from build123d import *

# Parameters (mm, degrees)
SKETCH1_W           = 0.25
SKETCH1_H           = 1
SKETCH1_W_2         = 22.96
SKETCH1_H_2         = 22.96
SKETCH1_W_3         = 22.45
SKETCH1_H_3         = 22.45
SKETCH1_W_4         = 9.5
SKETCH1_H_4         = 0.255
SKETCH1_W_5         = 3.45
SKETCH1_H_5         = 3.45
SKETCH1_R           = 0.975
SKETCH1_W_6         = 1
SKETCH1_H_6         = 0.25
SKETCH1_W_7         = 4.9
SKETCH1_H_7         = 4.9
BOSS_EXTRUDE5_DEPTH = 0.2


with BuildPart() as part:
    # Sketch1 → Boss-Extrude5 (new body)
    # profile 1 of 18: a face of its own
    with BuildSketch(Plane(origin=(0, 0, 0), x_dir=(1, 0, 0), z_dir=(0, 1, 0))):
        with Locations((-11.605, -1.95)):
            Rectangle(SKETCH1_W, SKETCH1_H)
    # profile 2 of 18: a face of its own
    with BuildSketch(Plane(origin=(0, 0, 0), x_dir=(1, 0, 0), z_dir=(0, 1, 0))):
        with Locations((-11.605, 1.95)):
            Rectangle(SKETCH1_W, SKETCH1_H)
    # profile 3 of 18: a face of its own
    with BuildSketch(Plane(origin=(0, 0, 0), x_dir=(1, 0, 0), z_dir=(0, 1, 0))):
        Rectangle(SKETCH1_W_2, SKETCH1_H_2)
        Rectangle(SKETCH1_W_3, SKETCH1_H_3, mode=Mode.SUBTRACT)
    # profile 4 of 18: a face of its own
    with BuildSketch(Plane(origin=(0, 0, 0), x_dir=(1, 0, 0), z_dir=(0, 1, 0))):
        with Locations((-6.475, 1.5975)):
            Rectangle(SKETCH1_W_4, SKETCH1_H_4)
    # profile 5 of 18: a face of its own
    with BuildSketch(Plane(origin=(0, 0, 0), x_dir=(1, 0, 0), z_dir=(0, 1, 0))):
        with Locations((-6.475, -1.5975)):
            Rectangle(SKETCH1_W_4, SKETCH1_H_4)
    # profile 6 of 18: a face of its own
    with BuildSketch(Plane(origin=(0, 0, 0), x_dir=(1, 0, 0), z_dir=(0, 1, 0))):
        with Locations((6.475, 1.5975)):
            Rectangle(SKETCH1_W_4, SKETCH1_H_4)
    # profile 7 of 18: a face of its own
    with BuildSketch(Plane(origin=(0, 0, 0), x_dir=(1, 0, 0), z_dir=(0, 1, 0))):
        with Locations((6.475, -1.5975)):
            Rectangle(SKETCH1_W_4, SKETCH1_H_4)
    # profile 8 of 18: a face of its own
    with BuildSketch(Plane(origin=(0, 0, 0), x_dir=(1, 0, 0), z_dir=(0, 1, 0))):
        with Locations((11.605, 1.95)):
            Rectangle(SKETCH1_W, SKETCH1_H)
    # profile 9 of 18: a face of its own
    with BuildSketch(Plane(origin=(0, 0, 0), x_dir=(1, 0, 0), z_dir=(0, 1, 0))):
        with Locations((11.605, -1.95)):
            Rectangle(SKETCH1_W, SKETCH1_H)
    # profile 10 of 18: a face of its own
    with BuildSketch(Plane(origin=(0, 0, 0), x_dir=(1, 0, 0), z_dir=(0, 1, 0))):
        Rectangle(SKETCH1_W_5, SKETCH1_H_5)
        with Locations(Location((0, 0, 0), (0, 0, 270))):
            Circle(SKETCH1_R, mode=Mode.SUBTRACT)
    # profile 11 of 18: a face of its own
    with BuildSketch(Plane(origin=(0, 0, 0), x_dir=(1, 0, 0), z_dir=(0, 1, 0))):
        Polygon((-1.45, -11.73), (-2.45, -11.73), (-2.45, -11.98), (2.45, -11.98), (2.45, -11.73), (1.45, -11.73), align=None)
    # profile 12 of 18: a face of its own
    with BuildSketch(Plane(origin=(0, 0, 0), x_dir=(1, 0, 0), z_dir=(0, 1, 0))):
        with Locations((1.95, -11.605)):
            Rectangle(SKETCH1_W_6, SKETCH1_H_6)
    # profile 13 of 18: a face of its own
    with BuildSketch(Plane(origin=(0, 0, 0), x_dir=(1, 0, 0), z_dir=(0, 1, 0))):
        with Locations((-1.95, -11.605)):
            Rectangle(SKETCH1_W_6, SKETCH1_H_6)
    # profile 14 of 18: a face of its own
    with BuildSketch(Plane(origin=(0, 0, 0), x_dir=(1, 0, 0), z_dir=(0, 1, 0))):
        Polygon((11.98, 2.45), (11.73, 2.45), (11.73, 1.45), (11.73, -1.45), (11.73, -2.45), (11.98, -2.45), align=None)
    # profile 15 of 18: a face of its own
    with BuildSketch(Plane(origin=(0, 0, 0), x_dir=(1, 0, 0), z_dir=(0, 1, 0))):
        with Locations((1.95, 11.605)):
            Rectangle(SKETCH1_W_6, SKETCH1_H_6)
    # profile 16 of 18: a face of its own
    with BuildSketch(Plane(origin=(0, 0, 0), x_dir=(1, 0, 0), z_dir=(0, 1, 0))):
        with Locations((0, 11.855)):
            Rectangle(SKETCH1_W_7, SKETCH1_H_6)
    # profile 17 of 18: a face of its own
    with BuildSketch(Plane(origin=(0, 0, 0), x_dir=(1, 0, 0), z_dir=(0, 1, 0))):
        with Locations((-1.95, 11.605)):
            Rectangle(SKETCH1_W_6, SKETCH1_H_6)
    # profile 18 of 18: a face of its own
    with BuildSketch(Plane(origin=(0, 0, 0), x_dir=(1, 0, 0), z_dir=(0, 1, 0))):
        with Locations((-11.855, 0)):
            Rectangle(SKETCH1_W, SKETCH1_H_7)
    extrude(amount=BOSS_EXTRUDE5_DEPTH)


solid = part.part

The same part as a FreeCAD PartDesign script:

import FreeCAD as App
import Part
import Sketcher

V = App.Vector

doc = App.newDocument("Part")
body = doc.addObject("PartDesign::Body", "Body")

# Sketch on XZ plane
sketch1 = body.newObject("Sketcher::SketchObject", "Sketch")
sketch1.AttachmentSupport = (doc.getObject("XZ_Plane"), [""])
sketch1.MapMode = "FlatFace"
sketch1.addGeometry(Part.LineSegment(V(-11.48, 2.45, 0), V(-11.48, 11.48, 0)), False)
sketch1.addGeometry(Part.LineSegment(V(-11.48, 11.48, 0), V(-2.45, 11.48, 0)), False)
sketch1.addGeometry(Part.LineSegment(V(-2.45, 11.48, 0), V(-2.45, 11.98, 0)), False)
sketch1.addGeometry(Part.LineSegment(V(-2.45, 11.98, 0), V(2.45, 11.98, 0)), False)
sketch1.addGeometry(Part.LineSegment(V(2.45, 11.98, 0), V(2.45, 11.48, 0)), False)
sketch1.addGeometry(Part.LineSegment(V(2.45, 11.48, 0), V(11.48, 11.48, 0)), False)
sketch1.addGeometry(Part.LineSegment(V(11.48, 11.48, 0), V(11.48, 2.45, 0)), False)
sketch1.addGeometry(Part.LineSegment(V(11.48, 2.45, 0), V(11.98, 2.45, 0)), False)
sketch1.addGeometry(Part.LineSegment(V(11.98, 2.45, 0), V(11.98, -2.45, 0)), False)
sketch1.addGeometry(Part.LineSegment(V(11.98, -2.45, 0), V(11.48, -2.45, 0)), False)
sketch1.addGeometry(Part.LineSegment(V(11.48, -2.45, 0), V(11.48, -11.48, 0)), False)
sketch1.addGeometry(Part.LineSegment(V(11.48, -11.48, 0), V(2.45, -11.48, 0)), False)
sketch1.addGeometry(Part.LineSegment(V(2.45, -11.48, 0), V(2.45, -11.98, 0)), False)
sketch1.addGeometry(Part.LineSegment(V(2.45, -11.98, 0), V(-2.45, -11.98, 0)), False)
sketch1.addGeometry(Part.LineSegment(V(-2.45, -11.98, 0), V(-2.45, -11.48, 0)), False)
sketch1.addGeometry(Part.LineSegment(V(-2.45, -11.48, 0), V(-11.48, -11.48, 0)), False)
sketch1.addGeometry(Part.LineSegment(V(-11.48, -11.48, 0), V(-11.48, -2.45, 0)), False)
sketch1.addGeometry(Part.LineSegment(V(-11.48, -2.45, 0), V(-11.98, -2.45, 0)), False)
sketch1.addGeometry(Part.LineSegment(V(-11.98, -2.45, 0), V(-11.98, 2.45, 0)), False)
sketch1.addGeometry(Part.LineSegment(V(-11.98, 2.45, 0), V(-11.48, 2.45, 0)), False)
sketch1.addGeometry(Part.LineSegment(V(-11.48, 1.45, 0), V(-11.73, 1.45, 0)), False)
sketch1.addGeometry(Part.LineSegment(V(-11.73, 1.45, 0), V(-11.73, -1.45, 0)), False)
sketch1.addGeometry(Part.LineSegment(V(-11.73, -1.45, 0), V(-11.48, -1.45, 0)), False)
sketch1.addGeometry(Part.LineSegment(V(-11.48, -1.45, 0), V(-11.48, 1.45, 0)), False)
sketch1.addGeometry(Part.LineSegment(V(-11.22, -1.73, 0), V(-11.22, -11.22, 0)), False)
sketch1.addGeometry(Part.LineSegment(V(-11.22, -11.22, 0), V(11.22, -11.22, 0)), False)
sketch1.addGeometry(Part.LineSegment(V(11.22, -11.22, 0), V(11.22, -1.73, 0)), False)
sketch1.addGeometry(Part.LineSegment(V(11.22, -1.73, 0), V(-11.22, -1.73, 0)), False)
sketch1.addGeometry(Part.LineSegment(V(-1.45, 11.48, 0), V(1.45, 11.48, 0)), False)
sketch1.addGeometry(Part.LineSegment(V(1.45, 11.48, 0), V(1.45, 11.73, 0)), False)
sketch1.addGeometry(Part.LineSegment(V(1.45, 11.73, 0), V(-1.45, 11.73, 0)), False)
sketch1.addGeometry(Part.LineSegment(V(-1.45, 11.73, 0), V(-1.45, 11.48, 0)), False)
sketch1.addGeometry(Part.LineSegment(V(1.45, -11.48, 0), V(-1.45, -11.48, 0)), False)
sketch1.addGeometry(Part.LineSegment(V(-1.45, -11.48, 0), V(-1.45, -11.73, 0)), False)
sketch1.addGeometry(Part.LineSegment(V(-1.45, -11.73, 0), V(1.45, -11.73, 0)), False)
sketch1.addGeometry(Part.LineSegment(V(1.45, -11.73, 0), V(1.45, -11.48, 0)), False)
sketch1.addGeometry(Part.LineSegment(V(11.48, 1.45, 0), V(11.48, -1.45, 0)), False)
sketch1.addGeometry(Part.LineSegment(V(11.48, -1.45, 0), V(11.73, -1.45, 0)), False)
sketch1.addGeometry(Part.LineSegment(V(11.73, -1.45, 0), V(11.73, 1.45, 0)), False)
sketch1.addGeometry(Part.LineSegment(V(11.73, 1.45, 0), V(11.48, 1.45, 0)), False)
sketch1.addGeometry(Part.LineSegment(V(11.22, 11.22, 0), V(-11.22, 11.22, 0)), False)
sketch1.addGeometry(Part.LineSegment(V(-11.22, 11.22, 0), V(-11.22, 1.73, 0)), False)
sketch1.addGeometry(Part.LineSegment(V(-11.22, 1.73, 0), V(11.22, 1.73, 0)), False)
sketch1.addGeometry(Part.LineSegment(V(11.22, 1.73, 0), V(11.22, 11.22, 0)), False)
sketch1.addGeometry(Part.LineSegment(V(11.22, -1.47, 0), V(11.22, 1.47, 0)), False)
sketch1.addGeometry(Part.LineSegment(V(11.22, 1.47, 0), V(1.73, 1.47, 0)), False)
sketch1.addGeometry(Part.LineSegment(V(1.73, 1.47, 0), V(1.73, -1.47, 0)), False)
sketch1.addGeometry(Part.LineSegment(V(1.73, -1.47, 0), V(11.22, -1.47, 0)), False)
sketch1.addGeometry(Part.LineSegment(V(-11.22, 1.47, 0), V(-11.22, -1.47, 0)), False)
sketch1.addGeometry(Part.LineSegment(V(-11.22, -1.47, 0), V(-1.73, -1.47, 0)), False)
sketch1.addGeometry(Part.LineSegment(V(-1.73, -1.47, 0), V(-1.73, 1.47, 0)), False)
sketch1.addGeometry(Part.LineSegment(V(-1.73, 1.47, 0), V(-11.22, 1.47, 0)), False)
sketch1.addGeometry(Part.Circle(V(0, 0, 0), V(0, 0, 1), 0.97), False)
sketch1.addConstraint(Sketcher.Constraint("Coincident", 0, 2, 1, 1))
sketch1.addConstraint(Sketcher.Constraint("Coincident", 1, 2, 2, 1))
sketch1.addConstraint(Sketcher.Constraint("Coincident", 2, 2, 3, 1))
sketch1.addConstraint(Sketcher.Constraint("Coincident", 3, 2, 4, 1))
sketch1.addConstraint(Sketcher.Constraint("Coincident", 4, 2, 5, 1))
sketch1.addConstraint(Sketcher.Constraint("Coincident", 5, 2, 6, 1))
sketch1.addConstraint(Sketcher.Constraint("Coincident", 6, 2, 7, 1))
sketch1.addConstraint(Sketcher.Constraint("Coincident", 7, 2, 8, 1))
sketch1.addConstraint(Sketcher.Constraint("Coincident", 8, 2, 9, 1))
sketch1.addConstraint(Sketcher.Constraint("Coincident", 9, 2, 10, 1))
sketch1.addConstraint(Sketcher.Constraint("Coincident", 10, 2, 11, 1))
sketch1.addConstraint(Sketcher.Constraint("Coincident", 11, 2, 12, 1))
sketch1.addConstraint(Sketcher.Constraint("Coincident", 12, 2, 13, 1))
sketch1.addConstraint(Sketcher.Constraint("Coincident", 13, 2, 14, 1))
sketch1.addConstraint(Sketcher.Constraint("Coincident", 14, 2, 15, 1))
sketch1.addConstraint(Sketcher.Constraint("Coincident", 15, 2, 16, 1))
sketch1.addConstraint(Sketcher.Constraint("Coincident", 16, 2, 17, 1))
sketch1.addConstraint(Sketcher.Constraint("Coincident", 17, 2, 18, 1))
sketch1.addConstraint(Sketcher.Constraint("Coincident", 18, 2, 19, 1))
sketch1.addConstraint(Sketcher.Constraint("Coincident", 19, 2, 0, 1))
sketch1.addConstraint(Sketcher.Constraint("Coincident", 20, 2, 21, 1))
sketch1.addConstraint(Sketcher.Constraint("Coincident", 21, 2, 22, 1))
sketch1.addConstraint(Sketcher.Constraint("Coincident", 22, 2, 23, 1))
sketch1.addConstraint(Sketcher.Constraint("Coincident", 23, 2, 20, 1))
sketch1.addConstraint(Sketcher.Constraint("Coincident", 24, 2, 25, 1))
sketch1.addConstraint(Sketcher.Constraint("Coincident", 25, 2, 26, 1))
sketch1.addConstraint(Sketcher.Constraint("Coincident", 26, 2, 27, 1))
sketch1.addConstraint(Sketcher.Constraint("Coincident", 27, 2, 24, 1))
sketch1.addConstraint(Sketcher.Constraint("Coincident", 28, 2, 29, 1))
sketch1.addConstraint(Sketcher.Constraint("Coincident", 29, 2, 30, 1))
sketch1.addConstraint(Sketcher.Constraint("Coincident", 30, 2, 31, 1))
sketch1.addConstraint(Sketcher.Constraint("Coincident", 31, 2, 28, 1))
sketch1.addConstraint(Sketcher.Constraint("Coincident", 32, 2, 33, 1))
sketch1.addConstraint(Sketcher.Constraint("Coincident", 33, 2, 34, 1))
sketch1.addConstraint(Sketcher.Constraint("Coincident", 34, 2, 35, 1))
sketch1.addConstraint(Sketcher.Constraint("Coincident", 35, 2, 32, 1))
sketch1.addConstraint(Sketcher.Constraint("Coincident", 36, 2, 37, 1))
sketch1.addConstraint(Sketcher.Constraint("Coincident", 37, 2, 38, 1))
sketch1.addConstraint(Sketcher.Constraint("Coincident", 38, 2, 39, 1))
sketch1.addConstraint(Sketcher.Constraint("Coincident", 39, 2, 36, 1))
sketch1.addConstraint(Sketcher.Constraint("Coincident", 40, 2, 41, 1))
sketch1.addConstraint(Sketcher.Constraint("Coincident", 41, 2, 42, 1))
sketch1.addConstraint(Sketcher.Constraint("Coincident", 42, 2, 43, 1))
sketch1.addConstraint(Sketcher.Constraint("Coincident", 43, 2, 40, 1))
sketch1.addConstraint(Sketcher.Constraint("Coincident", 44, 2, 45, 1))
sketch1.addConstraint(Sketcher.Constraint("Coincident", 45, 2, 46, 1))
sketch1.addConstraint(Sketcher.Constraint("Coincident", 46, 2, 47, 1))
sketch1.addConstraint(Sketcher.Constraint("Coincident", 47, 2, 44, 1))
sketch1.addConstraint(Sketcher.Constraint("Coincident", 48, 2, 49, 1))
sketch1.addConstraint(Sketcher.Constraint("Coincident", 49, 2, 50, 1))
sketch1.addConstraint(Sketcher.Constraint("Coincident", 50, 2, 51, 1))
sketch1.addConstraint(Sketcher.Constraint("Coincident", 51, 2, 48, 1))
sketch1.addConstraint(Sketcher.Constraint("Vertical", 0))
sketch1.addConstraint(Sketcher.Constraint("Horizontal", 1))
sketch1.addConstraint(Sketcher.Constraint("Vertical", 2))
sketch1.addConstraint(Sketcher.Constraint("Horizontal", 3))
sketch1.addConstraint(Sketcher.Constraint("Vertical", 4))
sketch1.addConstraint(Sketcher.Constraint("Horizontal", 5))
sketch1.addConstraint(Sketcher.Constraint("Vertical", 6))
sketch1.addConstraint(Sketcher.Constraint("Horizontal", 7))
sketch1.addConstraint(Sketcher.Constraint("Vertical", 8))
sketch1.addConstraint(Sketcher.Constraint("Horizontal", 9))
sketch1.addConstraint(Sketcher.Constraint("Vertical", 10))
sketch1.addConstraint(Sketcher.Constraint("Horizontal", 11))
sketch1.addConstraint(Sketcher.Constraint("Vertical", 12))
sketch1.addConstraint(Sketcher.Constraint("Horizontal", 13))
sketch1.addConstraint(Sketcher.Constraint("Vertical", 14))
sketch1.addConstraint(Sketcher.Constraint("Horizontal", 15))
sketch1.addConstraint(Sketcher.Constraint("Vertical", 16))
sketch1.addConstraint(Sketcher.Constraint("Horizontal", 17))
sketch1.addConstraint(Sketcher.Constraint("Vertical", 18))
sketch1.addConstraint(Sketcher.Constraint("Horizontal", 19))
sketch1.addConstraint(Sketcher.Constraint("Horizontal", 20))
sketch1.addConstraint(Sketcher.Constraint("Vertical", 21))
sketch1.addConstraint(Sketcher.Constraint("Horizontal", 22))
sketch1.addConstraint(Sketcher.Constraint("Vertical", 23))
sketch1.addConstraint(Sketcher.Constraint("Vertical", 24))
sketch1.addConstraint(Sketcher.Constraint("Horizontal", 25))
sketch1.addConstraint(Sketcher.Constraint("Vertical", 26))
sketch1.addConstraint(Sketcher.Constraint("Horizontal", 27))
sketch1.addConstraint(Sketcher.Constraint("Horizontal", 28))
sketch1.addConstraint(Sketcher.Constraint("Vertical", 29))
sketch1.addConstraint(Sketcher.Constraint("Horizontal", 30))
sketch1.addConstraint(Sketcher.Constraint("Vertical", 31))
sketch1.addConstraint(Sketcher.Constraint("Horizontal", 32))
sketch1.addConstraint(Sketcher.Constraint("Vertical", 33))
sketch1.addConstraint(Sketcher.Constraint("Horizontal", 34))
sketch1.addConstraint(Sketcher.Constraint("Vertical", 35))
sketch1.addConstraint(Sketcher.Constraint("Vertical", 36))
sketch1.addConstraint(Sketcher.Constraint("Horizontal", 37))
sketch1.addConstraint(Sketcher.Constraint("Vertical", 38))
sketch1.addConstraint(Sketcher.Constraint("Horizontal", 39))
sketch1.addConstraint(Sketcher.Constraint("Horizontal", 40))
sketch1.addConstraint(Sketcher.Constraint("Vertical", 41))
sketch1.addConstraint(Sketcher.Constraint("Horizontal", 42))
sketch1.addConstraint(Sketcher.Constraint("Vertical", 43))
sketch1.addConstraint(Sketcher.Constraint("Vertical", 44))
sketch1.addConstraint(Sketcher.Constraint("Horizontal", 45))
sketch1.addConstraint(Sketcher.Constraint("Vertical", 46))
sketch1.addConstraint(Sketcher.Constraint("Horizontal", 47))
sketch1.addConstraint(Sketcher.Constraint("Vertical", 48))
sketch1.addConstraint(Sketcher.Constraint("Horizontal", 49))
sketch1.addConstraint(Sketcher.Constraint("Vertical", 50))
sketch1.addConstraint(Sketcher.Constraint("Horizontal", 51))
sketch1.addConstraint(Sketcher.Constraint("Coincident", 52, 3, -1, 1))
sketch1.addConstraint(Sketcher.Constraint("Symmetric", 0, 2, 10, 2, -1, 1))
sketch1.addConstraint(Sketcher.Constraint("Symmetric", 2, 2, 12, 2, -1, 1))
sketch1.addConstraint(Sketcher.Constraint("Symmetric", 4, 2, 14, 2, -1, 1))
sketch1.addConstraint(Sketcher.Constraint("Symmetric", 6, 2, 16, 2, -1, 1))
sketch1.addConstraint(Sketcher.Constraint("Symmetric", 8, 2, 18, 2, -1, 1))
sketch1.addConstraint(Sketcher.Constraint("Symmetric", 28, 2, 32, 2, -1, 1))
sketch1.addConstraint(Sketcher.Constraint("Symmetric", 30, 2, 34, 2, -1, 1))
sketch1.addConstraint(Sketcher.Constraint("Symmetric", 23, 2, 36, 2, -1, 1))
sketch1.addConstraint(Sketcher.Constraint("Symmetric", 21, 2, 38, 2, -1, 1))
sketch1.addConstraint(Sketcher.Constraint("Symmetric", 25, 2, 40, 2, -1, 1))
sketch1.addConstraint(Sketcher.Constraint("Symmetric", 27, 2, 42, 2, -1, 1))
sketch1.addConstraint(Sketcher.Constraint("Symmetric", 44, 2, 48, 2, -1, 1))
sketch1.addConstraint(Sketcher.Constraint("Symmetric", 46, 2, 50, 2, -1, 1))
sketch1.addConstraint(Sketcher.Constraint("Symmetric", 1, 2, 4, 2, -2))
sketch1.addConstraint(Sketcher.Constraint("Symmetric", 9, 2, 16, 2, -2))
sketch1.addConstraint(Sketcher.Constraint("Horizontal", 5, 2, 28, 2))
sketch1.addConstraint(Sketcher.Constraint("Horizontal", 22, 2, 36, 2))
sketch1.addConstraint(Sketcher.Constraint("Horizontal", 47, 2, 48, 2))
sketch1.addConstraint(Sketcher.Constraint("Vertical", 19, 2, 22, 2))
sketch1.addConstraint(Sketcher.Constraint("Vertical", 31, 2, 32, 2))
sketch1.addConstraint(Sketcher.Constraint("Vertical", 27, 2, 40, 2))
sketch1.addConstraint(Sketcher.Constraint("Vertical", 43, 2, 44, 2))
sketch1.addConstraint(Sketcher.Constraint("Equal", 15, 0))
sketch1.addConstraint(Sketcher.Constraint("Equal", 19, 2))
sketch1.addConstraint(Sketcher.Constraint("Equal", 13, 8))
sketch1.addConstraint(Sketcher.Constraint("Equal", 34, 21))
sketch1.addConstraint(Sketcher.Constraint("Equal", 51, 24))
sketch1.addConstraint(Sketcher.Constraint("Equal", 39, 29))
sketch1.addConstraint(Sketcher.Constraint("Diameter", 52, 1.95))
sketch1.addConstraint(Sketcher.Constraint("DistanceX", 3, 1, 3, 2, 4.9))
sketch1.addConstraint(Sketcher.Constraint("DistanceX", 7, 1, 7, 2, 0.5))
sketch1.addConstraint(Sketcher.Constraint("DistanceX", 28, 1, 28, 2, 2.9))
sketch1.addConstraint(Sketcher.Constraint("DistanceX", 45, 2, 45, 1, 9.5))
sketch1.addConstraint(Sketcher.Constraint("DistanceX", 1, 1, 1, 2, 9.03))
sketch1.addConstraint(Sketcher.Constraint("DistanceX", 20, 2, 20, 1, 0.25))
sketch1.addConstraint(Sketcher.Constraint("DistanceX", 25, 1, 25, 2, 22.45))
sketch1.addConstraint(Sketcher.Constraint("DistanceY", 44, 1, 44, 2, 2.94))
sketch1.addConstraint(Sketcher.Constraint("DistanceY", 24, 2, -1, 1, 11.225))
pad1 = body.newObject("PartDesign::Pad", "Pad")
pad1.Profile = sketch1
pad1.Length = 0.2
pad1.Reversed = True

doc.recompute()
